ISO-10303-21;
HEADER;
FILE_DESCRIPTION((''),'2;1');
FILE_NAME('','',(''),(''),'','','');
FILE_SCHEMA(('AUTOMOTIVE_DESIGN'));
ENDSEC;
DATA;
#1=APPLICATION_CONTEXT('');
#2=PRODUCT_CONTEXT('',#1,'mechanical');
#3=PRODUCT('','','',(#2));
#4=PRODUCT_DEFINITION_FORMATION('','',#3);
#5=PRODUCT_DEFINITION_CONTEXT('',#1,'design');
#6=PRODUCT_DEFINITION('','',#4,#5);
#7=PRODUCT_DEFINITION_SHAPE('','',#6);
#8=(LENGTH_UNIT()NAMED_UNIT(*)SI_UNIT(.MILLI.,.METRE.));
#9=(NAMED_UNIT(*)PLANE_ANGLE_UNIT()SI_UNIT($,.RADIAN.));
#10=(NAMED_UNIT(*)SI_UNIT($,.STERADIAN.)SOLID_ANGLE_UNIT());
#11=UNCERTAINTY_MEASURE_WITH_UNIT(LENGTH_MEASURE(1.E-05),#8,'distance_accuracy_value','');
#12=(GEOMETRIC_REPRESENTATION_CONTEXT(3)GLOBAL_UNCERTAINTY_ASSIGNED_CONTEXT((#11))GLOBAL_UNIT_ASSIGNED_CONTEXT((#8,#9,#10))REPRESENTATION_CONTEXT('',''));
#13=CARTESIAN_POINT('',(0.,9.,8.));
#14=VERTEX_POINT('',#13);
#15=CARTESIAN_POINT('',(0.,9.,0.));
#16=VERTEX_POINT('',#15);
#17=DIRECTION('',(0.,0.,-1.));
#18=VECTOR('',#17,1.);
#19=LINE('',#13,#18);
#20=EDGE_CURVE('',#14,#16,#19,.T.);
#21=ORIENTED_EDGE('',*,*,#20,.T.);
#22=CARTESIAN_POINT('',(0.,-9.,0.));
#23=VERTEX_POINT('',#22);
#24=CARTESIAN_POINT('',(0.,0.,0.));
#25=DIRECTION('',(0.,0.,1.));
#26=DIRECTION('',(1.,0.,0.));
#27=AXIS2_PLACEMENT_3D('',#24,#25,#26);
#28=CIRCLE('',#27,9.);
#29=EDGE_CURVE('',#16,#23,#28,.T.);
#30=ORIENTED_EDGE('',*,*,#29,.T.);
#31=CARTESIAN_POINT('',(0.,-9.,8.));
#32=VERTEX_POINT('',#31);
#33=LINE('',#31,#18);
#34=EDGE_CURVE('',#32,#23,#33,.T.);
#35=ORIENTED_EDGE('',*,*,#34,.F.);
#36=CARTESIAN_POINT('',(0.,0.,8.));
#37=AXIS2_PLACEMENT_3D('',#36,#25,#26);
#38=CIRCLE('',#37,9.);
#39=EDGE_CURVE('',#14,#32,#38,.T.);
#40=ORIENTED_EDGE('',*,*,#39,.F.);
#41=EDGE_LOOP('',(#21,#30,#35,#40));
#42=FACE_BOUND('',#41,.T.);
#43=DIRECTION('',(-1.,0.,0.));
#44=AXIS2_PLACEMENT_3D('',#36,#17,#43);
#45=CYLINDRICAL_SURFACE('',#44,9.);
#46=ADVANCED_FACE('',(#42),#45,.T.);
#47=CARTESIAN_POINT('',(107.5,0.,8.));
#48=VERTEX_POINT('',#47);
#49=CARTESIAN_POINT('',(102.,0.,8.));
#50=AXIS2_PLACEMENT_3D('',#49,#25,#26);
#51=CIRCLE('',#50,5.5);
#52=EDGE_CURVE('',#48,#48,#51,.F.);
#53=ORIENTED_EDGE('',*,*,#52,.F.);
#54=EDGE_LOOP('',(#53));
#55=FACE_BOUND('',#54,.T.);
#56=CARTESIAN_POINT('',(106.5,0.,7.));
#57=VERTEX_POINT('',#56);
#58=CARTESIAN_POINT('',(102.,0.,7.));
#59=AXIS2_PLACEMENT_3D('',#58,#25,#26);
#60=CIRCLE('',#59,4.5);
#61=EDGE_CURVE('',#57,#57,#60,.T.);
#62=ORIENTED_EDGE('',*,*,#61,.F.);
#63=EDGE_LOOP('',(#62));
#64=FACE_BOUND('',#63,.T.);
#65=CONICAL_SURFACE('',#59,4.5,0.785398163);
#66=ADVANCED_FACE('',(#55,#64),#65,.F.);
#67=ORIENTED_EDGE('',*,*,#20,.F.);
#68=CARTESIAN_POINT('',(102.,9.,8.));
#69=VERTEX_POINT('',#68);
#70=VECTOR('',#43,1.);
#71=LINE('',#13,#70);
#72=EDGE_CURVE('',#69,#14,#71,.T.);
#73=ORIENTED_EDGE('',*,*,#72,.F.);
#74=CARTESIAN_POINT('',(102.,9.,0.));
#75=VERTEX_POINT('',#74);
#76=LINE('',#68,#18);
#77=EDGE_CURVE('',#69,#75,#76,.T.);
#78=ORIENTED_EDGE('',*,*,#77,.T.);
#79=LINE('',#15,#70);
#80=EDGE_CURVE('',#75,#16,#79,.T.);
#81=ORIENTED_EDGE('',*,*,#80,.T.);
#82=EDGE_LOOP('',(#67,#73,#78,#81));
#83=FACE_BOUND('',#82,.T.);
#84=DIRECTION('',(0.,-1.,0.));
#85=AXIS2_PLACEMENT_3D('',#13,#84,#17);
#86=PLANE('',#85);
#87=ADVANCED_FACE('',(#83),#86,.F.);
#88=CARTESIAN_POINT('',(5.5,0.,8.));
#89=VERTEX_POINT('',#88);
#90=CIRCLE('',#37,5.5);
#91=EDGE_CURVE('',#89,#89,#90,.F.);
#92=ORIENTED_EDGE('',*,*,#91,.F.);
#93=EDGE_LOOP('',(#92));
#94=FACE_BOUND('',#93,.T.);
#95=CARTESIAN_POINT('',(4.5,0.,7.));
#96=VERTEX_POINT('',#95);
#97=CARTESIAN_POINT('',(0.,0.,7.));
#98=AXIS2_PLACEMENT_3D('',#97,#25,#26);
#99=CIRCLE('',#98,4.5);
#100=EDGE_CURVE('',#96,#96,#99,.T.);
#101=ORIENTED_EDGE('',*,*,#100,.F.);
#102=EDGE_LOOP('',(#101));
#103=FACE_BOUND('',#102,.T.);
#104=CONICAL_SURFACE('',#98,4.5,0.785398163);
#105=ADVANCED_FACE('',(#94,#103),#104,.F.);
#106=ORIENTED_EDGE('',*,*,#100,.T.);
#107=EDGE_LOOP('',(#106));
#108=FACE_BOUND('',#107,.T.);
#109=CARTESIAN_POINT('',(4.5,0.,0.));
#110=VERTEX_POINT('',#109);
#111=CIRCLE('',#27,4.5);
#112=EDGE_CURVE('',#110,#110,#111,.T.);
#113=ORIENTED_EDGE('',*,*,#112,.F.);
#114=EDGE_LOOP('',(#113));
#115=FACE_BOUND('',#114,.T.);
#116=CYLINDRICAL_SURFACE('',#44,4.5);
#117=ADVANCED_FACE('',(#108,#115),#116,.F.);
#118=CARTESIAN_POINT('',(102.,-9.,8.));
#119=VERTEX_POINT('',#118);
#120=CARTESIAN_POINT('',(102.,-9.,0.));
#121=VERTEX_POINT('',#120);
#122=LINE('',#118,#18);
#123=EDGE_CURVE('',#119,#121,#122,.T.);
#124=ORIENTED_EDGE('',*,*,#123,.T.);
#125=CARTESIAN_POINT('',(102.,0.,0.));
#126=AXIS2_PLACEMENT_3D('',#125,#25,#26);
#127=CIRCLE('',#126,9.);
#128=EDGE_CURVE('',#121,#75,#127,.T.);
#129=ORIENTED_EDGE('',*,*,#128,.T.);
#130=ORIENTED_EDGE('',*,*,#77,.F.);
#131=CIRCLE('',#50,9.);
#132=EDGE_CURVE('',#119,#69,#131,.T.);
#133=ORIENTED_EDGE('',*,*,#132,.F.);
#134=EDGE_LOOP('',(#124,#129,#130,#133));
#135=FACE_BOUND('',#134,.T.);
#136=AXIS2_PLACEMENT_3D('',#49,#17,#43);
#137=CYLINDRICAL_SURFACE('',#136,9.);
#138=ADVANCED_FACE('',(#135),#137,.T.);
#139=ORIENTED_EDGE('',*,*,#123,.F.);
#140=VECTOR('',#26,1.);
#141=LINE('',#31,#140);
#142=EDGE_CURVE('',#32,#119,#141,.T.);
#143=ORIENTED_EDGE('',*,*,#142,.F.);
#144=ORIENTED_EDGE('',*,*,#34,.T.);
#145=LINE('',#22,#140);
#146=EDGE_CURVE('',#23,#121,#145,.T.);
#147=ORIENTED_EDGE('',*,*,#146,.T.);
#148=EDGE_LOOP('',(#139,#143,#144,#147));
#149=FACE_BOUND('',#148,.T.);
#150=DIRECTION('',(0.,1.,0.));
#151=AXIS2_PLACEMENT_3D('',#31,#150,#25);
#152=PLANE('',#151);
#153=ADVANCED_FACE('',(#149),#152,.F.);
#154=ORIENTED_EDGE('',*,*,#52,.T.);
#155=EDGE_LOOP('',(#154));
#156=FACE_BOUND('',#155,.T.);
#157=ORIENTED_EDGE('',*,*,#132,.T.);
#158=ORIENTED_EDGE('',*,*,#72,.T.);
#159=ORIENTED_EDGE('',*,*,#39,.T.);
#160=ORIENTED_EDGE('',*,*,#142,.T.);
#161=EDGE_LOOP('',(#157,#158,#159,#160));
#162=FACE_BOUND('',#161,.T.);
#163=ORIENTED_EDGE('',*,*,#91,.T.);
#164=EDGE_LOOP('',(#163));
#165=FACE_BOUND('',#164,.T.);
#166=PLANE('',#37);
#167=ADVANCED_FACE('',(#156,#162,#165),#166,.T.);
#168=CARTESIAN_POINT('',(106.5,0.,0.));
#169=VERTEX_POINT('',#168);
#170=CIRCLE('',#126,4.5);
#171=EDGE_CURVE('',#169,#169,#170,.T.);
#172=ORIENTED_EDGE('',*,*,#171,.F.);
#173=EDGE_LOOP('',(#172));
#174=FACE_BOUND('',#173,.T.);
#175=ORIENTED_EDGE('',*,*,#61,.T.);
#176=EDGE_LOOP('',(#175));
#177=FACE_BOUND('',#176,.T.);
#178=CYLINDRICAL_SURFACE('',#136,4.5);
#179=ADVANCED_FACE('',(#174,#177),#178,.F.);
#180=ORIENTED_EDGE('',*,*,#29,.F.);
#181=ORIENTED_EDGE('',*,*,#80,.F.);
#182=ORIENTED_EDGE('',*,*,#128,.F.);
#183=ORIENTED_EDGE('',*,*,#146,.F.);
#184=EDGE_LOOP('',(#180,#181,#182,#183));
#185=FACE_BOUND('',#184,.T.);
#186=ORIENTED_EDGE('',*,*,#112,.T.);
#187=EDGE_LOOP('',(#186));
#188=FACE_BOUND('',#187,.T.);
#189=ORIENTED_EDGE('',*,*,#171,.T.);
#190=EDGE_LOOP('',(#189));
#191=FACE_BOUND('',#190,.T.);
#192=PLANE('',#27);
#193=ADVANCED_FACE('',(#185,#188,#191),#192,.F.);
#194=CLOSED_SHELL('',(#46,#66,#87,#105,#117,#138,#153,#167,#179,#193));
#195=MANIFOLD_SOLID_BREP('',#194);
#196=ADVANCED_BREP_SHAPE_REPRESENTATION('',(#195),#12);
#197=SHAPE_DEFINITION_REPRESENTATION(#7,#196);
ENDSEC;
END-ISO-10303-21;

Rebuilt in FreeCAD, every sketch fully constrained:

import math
import FreeCAD as App
import Part
import Sketcher

V = App.Vector


def edges_at(feature, points):
    """Names of the edges that pass closest to the given points."""
    edges = feature.Shape.Edges
    near = lambda p: min(range(len(edges)), key=lambda i: edges[i].distToShape(Part.Vertex(*p))[0])
    return sorted({f"Edge{near(p) + 1}" for p in points})

doc = App.newDocument("Part")
params = doc.addObject("Spreadsheet::Sheet", "Params")
for row, (alias, value) in enumerate([
    ("sketch1_diameter", "9 mm"),
    ("sketch1_radius", "9 mm"),
    ("sketch1_width", "102 mm"),
    ("pad1_length", "8 mm"),
    ("chamfer_size", "1 mm"),
], start=1):
    params.set(f"A{row}", alias)
    params.set(f"B{row}", "=" + value)
    params.setAlias(f"B{row}", alias)

body = doc.addObject("PartDesign::Body", "Body")

# Sketch on XY plane
sketch1 = body.newObject("Sketcher::SketchObject", "Sketch")
sketch1.AttachmentSupport = (doc.getObject("XY_Plane"), [""])
sketch1.MapMode = "FlatFace"
sketch1.addGeometry([
    Part.LineSegment(V(102, 9, 0), V(0, 9, 0)),  # 0
    Part.ArcOfCircle(Part.Circle(V(0, 0, 0), V(0, 0, 1), 9), math.radians(90), math.radians(270)),  # 1
    Part.LineSegment(V(0, -9, 0), V(102, -9, 0)),  # 2
    Part.ArcOfCircle(Part.Circle(V(102, 0, 0), V(0, 0, 1), 9), math.radians(-90), math.radians(90)),  # 3
    Part.Circle(V(102, 0, 0), V(0, 0, 1), 4.5),  # 4
    Part.Circle(V(0, 0, 0), V(0, 0, 1), 4.5),  # 5
], False)
sketch1.addConstraint([
    Sketcher.Constraint("Tangent", 0, 2, 1, 1),
    Sketcher.Constraint("Tangent", 1, 2, 2, 1),
    Sketcher.Constraint("Tangent", 2, 2, 3, 1),
    Sketcher.Constraint("Tangent", 3, 2, 0, 1),
    Sketcher.Constraint("Horizontal", 0),
    Sketcher.Constraint("Horizontal", 2),
    Sketcher.Constraint("Coincident", 1, 3, -1, 1),
    Sketcher.Constraint("Coincident", 5, 3, -1, 1),
    Sketcher.Constraint("Coincident", 4, 3, 3, 3),
    Sketcher.Constraint("Equal", 4, 5),
    Sketcher.Constraint("Diameter", 4, 9.0),
    Sketcher.Constraint("Radius", 1, 9.0),
    Sketcher.Constraint("DistanceX", 0, 2, 0, 1, 102.0),
])
sketch1.setExpression("Constraints[10]", "Params.sketch1_diameter")
sketch1.setExpression("Constraints[11]", "Params.sketch1_radius")
sketch1.setExpression("Constraints[12]", "Params.sketch1_width")
pad1 = body.newObject("PartDesign::Pad", "Pad")
pad1.Profile = sketch1
pad1.setExpression("Length", "Params.pad1_length")
doc.recompute()

chamfer = body.newObject("PartDesign::Chamfer", "Chamfer")
chamfer.Base = (pad1, edges_at(pad1, [(-4.5, 0, 8), (97.5, 0, 8)]))
chamfer.setExpression("Size", "Params.chamfer_size")

doc.recompute()
